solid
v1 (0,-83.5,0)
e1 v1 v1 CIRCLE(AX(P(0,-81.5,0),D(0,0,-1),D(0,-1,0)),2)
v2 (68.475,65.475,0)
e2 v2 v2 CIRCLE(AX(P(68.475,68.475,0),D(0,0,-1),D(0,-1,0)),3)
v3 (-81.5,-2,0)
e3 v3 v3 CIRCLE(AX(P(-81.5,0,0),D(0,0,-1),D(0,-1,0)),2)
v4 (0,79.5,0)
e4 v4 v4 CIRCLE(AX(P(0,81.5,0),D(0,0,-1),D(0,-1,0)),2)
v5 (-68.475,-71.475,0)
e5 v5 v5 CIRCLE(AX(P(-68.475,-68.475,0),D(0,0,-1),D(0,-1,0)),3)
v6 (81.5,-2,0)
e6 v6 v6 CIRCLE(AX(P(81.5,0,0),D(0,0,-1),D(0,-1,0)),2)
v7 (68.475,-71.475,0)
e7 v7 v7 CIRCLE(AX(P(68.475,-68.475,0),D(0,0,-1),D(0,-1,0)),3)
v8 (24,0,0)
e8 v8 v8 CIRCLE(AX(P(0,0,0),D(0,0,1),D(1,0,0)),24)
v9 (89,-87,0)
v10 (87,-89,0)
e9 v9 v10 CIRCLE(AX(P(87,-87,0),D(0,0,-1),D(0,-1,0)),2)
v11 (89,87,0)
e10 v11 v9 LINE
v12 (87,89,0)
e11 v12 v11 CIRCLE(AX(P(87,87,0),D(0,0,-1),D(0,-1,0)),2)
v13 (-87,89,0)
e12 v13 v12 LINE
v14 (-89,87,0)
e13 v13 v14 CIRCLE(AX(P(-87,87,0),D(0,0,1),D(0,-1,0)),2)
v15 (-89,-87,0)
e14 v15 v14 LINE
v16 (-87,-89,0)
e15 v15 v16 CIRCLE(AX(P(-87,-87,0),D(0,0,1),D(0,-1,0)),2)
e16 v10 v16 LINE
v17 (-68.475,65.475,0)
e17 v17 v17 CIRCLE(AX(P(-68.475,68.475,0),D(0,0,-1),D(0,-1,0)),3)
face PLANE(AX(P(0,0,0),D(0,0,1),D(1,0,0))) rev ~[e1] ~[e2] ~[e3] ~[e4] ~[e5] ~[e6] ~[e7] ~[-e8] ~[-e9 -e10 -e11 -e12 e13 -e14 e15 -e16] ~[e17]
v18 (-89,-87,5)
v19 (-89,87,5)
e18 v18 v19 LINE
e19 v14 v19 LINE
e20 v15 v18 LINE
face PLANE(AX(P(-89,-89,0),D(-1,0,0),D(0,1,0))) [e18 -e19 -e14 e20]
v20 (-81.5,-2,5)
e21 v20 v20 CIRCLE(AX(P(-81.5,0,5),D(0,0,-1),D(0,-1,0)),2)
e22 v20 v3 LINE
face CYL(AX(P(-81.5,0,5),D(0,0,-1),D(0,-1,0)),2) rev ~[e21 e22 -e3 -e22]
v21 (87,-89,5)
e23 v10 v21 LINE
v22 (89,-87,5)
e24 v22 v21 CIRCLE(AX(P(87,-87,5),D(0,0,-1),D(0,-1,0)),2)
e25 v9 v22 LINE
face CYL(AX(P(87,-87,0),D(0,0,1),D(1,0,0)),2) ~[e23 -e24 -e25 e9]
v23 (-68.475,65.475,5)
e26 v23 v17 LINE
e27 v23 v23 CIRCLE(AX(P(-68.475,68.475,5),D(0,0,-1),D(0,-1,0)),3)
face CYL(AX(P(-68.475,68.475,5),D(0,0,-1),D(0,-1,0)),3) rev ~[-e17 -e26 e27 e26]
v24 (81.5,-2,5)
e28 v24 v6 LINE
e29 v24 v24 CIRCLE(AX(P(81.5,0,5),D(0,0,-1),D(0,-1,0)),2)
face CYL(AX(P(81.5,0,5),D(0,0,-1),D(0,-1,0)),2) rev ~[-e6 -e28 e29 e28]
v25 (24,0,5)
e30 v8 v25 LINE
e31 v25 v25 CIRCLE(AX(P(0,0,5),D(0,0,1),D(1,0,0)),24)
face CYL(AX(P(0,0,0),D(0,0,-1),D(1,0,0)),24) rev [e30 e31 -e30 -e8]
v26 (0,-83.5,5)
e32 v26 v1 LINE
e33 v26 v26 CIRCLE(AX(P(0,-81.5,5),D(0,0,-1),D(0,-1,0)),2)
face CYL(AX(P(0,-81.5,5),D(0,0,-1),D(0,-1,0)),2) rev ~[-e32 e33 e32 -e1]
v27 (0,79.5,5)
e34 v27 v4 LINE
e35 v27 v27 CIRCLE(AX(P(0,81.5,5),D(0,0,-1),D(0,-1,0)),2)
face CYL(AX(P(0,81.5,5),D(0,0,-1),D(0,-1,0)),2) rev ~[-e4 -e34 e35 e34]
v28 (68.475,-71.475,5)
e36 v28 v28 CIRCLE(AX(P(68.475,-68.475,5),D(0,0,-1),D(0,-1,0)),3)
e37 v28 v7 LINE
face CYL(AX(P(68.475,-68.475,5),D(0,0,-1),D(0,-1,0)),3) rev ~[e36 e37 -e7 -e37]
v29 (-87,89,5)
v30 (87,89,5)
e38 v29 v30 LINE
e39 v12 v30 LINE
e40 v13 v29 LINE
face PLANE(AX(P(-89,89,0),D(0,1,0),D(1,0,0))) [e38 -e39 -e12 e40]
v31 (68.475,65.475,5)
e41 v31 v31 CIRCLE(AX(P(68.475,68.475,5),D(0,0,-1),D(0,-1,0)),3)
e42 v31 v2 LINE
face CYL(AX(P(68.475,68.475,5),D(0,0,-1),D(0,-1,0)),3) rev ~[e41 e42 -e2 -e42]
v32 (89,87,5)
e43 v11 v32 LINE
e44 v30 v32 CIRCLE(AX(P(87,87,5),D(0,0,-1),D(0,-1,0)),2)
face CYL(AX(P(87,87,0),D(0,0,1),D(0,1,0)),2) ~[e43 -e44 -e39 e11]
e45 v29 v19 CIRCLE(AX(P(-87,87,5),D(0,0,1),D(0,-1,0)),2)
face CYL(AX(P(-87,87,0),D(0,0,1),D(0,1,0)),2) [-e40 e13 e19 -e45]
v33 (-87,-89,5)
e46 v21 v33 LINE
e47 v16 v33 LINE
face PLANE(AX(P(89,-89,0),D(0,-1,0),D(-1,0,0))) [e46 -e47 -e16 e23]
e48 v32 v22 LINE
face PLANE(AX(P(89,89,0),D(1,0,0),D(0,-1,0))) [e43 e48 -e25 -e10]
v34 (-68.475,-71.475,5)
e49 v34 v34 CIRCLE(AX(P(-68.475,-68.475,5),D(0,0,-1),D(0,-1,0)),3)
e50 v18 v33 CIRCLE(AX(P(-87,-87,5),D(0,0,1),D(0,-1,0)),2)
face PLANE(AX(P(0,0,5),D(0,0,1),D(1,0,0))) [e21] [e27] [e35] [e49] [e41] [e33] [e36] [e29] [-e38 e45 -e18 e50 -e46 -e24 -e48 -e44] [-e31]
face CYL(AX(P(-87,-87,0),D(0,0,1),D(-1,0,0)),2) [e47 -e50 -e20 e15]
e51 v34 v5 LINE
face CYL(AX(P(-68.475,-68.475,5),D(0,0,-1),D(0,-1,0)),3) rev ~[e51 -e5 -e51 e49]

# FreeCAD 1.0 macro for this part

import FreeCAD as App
import Part
import Sketcher


def edges_at(feature, points):
    """Names of the edges that pass closest to the given points."""
    edges = feature.Shape.Edges
    near = lambda p: min(range(len(edges)), key=lambda i: edges[i].distToShape(Part.Vertex(*p))[0])
    return sorted({f"Edge{near(p) + 1}" for p in points})


def add_polygon(sketch, points):
    """Adds a closed chain of lines whose ends are joined by coincident constraints."""
    first, n = sketch.GeometryCount, len(points)
    for a, b in zip(points, points[1:] + points[:1]):
        sketch.addGeometry(Part.LineSegment(App.Vector(*a, 0), App.Vector(*b, 0)), False)
    for i in range(n):
        sketch.addConstraint(Sketcher.Constraint("Coincident", first + i, 2, first + (i + 1) % n, 1))

doc = App.newDocument("Part")
body = doc.addObject("PartDesign::Body", "Body")

# Sketch on XY plane
sketch1 = body.newObject("Sketcher::SketchObject", "Sketch")
sketch1.AttachmentSupport = (doc.getObject("XY_Plane"), [""])
sketch1.MapMode = "FlatFace"
add_polygon(sketch1, [(89, 89), (-89, 89), (-89, -89), (89, -89)])  # lines 0-3
sketch1.addGeometry(Part.Circle(App.Vector(0, 0, 0), App.Vector(0, 0, 1), 24), False)  # 4
sketch1.addConstraint(Sketcher.Constraint("Horizontal", 0))
sketch1.addConstraint(Sketcher.Constraint("Vertical", 1))
sketch1.addConstraint(Sketcher.Constraint("Horizontal", 2))
sketch1.addConstraint(Sketcher.Constraint("Vertical", 3))
sketch1.addConstraint(Sketcher.Constraint("Coincident", 4, 3, -1, 1))
sketch1.addConstraint(Sketcher.Constraint("Symmetric", 0, 2, 2, 2, -1, 1))
sketch1.addConstraint(Sketcher.Constraint("Equal", 2, 1))
sketch1.addConstraint(Sketcher.Constraint("Diameter", 4, 48.0))
sketch1.addConstraint(Sketcher.Constraint("DistanceX", 0, 2, 0, 1, 178.0))
pad1 = body.newObject("PartDesign::Pad", "Pad")
pad1.Profile = sketch1
pad1.Length = 5

# Sketch on XY plane
sketch2 = body.newObject("Sketcher::SketchObject", "Sketch001")
sketch2.AttachmentSupport = (doc.getObject("XY_Plane"), [""])
sketch2.MapMode = "FlatFace"
sketch2.AttachmentOffset = App.Placement(App.Vector(0, 0, 5), App.Rotation())
sketch2.addGeometry(Part.Circle(App.Vector(-81.5, 0, 0), App.Vector(0, 0, 1), 2), False)
sketch2.addGeometry(Part.Circle(App.Vector(0, 81.5, 0), App.Vector(0, 0, 1), 2), False)
sketch2.addGeometry(Part.Circle(App.Vector(81.5, 0, 0), App.Vector(0, 0, 1), 2), False)
sketch2.addGeometry(Part.Circle(App.Vector(0, -81.5, 0), App.Vector(0, 0, 1), 2), False)
sketch2.addConstraint(Sketcher.Constraint("Equal", 0, 1))
sketch2.addConstraint(Sketcher.Constraint("Equal", 1, 2))
sketch2.addConstraint(Sketcher.Constraint("Equal", 2, 3))
sketch2.addConstraint(Sketcher.Constraint("Symmetric", 0, 3, 2, 3, -1, 1))
sketch2.addConstraint(Sketcher.Constraint("Symmetric", 1, 3, 3, 3, -1, 1))
sketch2.addConstraint(Sketcher.Constraint("PointOnObject", 0, 3, -1))
sketch2.addConstraint(Sketcher.Constraint("PointOnObject", 1, 3, -2))
sketch2.addConstraint(Sketcher.Constraint("Diameter", 0, 4.0))
sketch2.addConstraint(Sketcher.Constraint("DistanceX", 0, 3, 2, 3, 163.0))
sketch2.addConstraint(Sketcher.Constraint("DistanceY", 3, 3, 1, 3, 163.0))
doc.recompute()
hole = body.newObject("PartDesign::Hole", "Hole")
hole.Profile = sketch2
hole.ThreadType = "None"
hole.Diameter = 4
hole.DepthType = "ThroughAll"
doc.recompute()

fillet = body.newObject("PartDesign::Fillet", "Fillet")
fillet.Base = (hole, edges_at(hole, [
    (-89, -89, 2.5),
    (-89, 89, 2.5),
    (89, -89, 2.5),
    (89, 89, 2.5),
]))
fillet.Radius = 2

# Sketch on XY plane
sketch3 = body.newObject("Sketcher::SketchObject", "Sketch002")
sketch3.AttachmentSupport = (doc.getObject("XY_Plane"), [""])
sketch3.MapMode = "FlatFace"
sketch3.AttachmentOffset = App.Placement(App.Vector(0, 0, 5), App.Rotation())
sketch3.addGeometry(Part.Circle(App.Vector(-68.475, 68.475, 0), App.Vector(0, 0, 1), 3), False)
sketch3.addGeometry(Part.Circle(App.Vector(68.475, 68.475, 0), App.Vector(0, 0, 1), 3), False)
sketch3.addGeometry(Part.Circle(App.Vector(68.475, -68.475, 0), App.Vector(0, 0, 1), 3), False)
sketch3.addGeometry(Part.Circle(App.Vector(-68.475, -68.475, 0), App.Vector(0, 0, 1), 3), False)
sketch3.addConstraint(Sketcher.Constraint("Equal", 0, 1))
sketch3.addConstraint(Sketcher.Constraint("Equal", 1, 2))
sketch3.addConstraint(Sketcher.Constraint("Equal", 2, 3))
sketch3.addConstraint(Sketcher.Constraint("Symmetric", 0, 3, 2, 3, -1, 1))
sketch3.addConstraint(Sketcher.Constraint("Symmetric", 1, 3, 3, 3, -1, 1))
sketch3.addConstraint(Sketcher.Constraint("Symmetric", 0, 3, 1, 3, -2))
sketch3.addConstraint(Sketcher.Constraint("Diameter", 0, 6.0))
sketch3.addConstraint(Sketcher.Constraint("DistanceX", 0, 3, 1, 3, 136.95))
sketch3.addConstraint(Sketcher.Constraint("DistanceY", 2, 3, 1, 3, 136.95))
doc.recompute()
hole2 = body.newObject("PartDesign::Hole", "Hole001")
hole2.Profile = sketch3
hole2.ThreadType = "None"
hole2.Diameter = 6
hole2.DepthType = "ThroughAll"

doc.recompute()
